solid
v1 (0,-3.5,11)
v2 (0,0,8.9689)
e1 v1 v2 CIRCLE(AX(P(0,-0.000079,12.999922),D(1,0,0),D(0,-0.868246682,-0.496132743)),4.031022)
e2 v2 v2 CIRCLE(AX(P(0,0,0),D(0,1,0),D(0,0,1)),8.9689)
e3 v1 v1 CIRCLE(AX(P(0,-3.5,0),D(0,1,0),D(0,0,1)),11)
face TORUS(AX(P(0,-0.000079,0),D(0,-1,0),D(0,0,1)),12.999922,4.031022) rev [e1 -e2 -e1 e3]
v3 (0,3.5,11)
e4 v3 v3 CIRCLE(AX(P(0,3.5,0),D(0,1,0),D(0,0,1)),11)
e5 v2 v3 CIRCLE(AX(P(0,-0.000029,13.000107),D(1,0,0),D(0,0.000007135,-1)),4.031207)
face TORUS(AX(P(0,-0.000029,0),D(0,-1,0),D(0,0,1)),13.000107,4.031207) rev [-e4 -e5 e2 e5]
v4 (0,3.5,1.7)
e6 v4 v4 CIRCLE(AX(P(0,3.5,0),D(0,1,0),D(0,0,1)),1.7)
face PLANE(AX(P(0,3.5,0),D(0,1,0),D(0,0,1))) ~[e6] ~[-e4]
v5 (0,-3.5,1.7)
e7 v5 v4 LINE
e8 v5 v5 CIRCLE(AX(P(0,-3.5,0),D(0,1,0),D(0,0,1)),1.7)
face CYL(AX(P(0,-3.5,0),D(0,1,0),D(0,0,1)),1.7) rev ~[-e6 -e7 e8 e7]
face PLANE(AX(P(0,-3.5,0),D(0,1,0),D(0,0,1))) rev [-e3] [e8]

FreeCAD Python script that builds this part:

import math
import FreeCAD as App
import Part
import Sketcher

V = App.Vector
Q = App.Units.Quantity

doc = App.newDocument("Part")
body = doc.addObject("PartDesign::Body", "Body")

sketch1 = body.newObject("Sketcher::SketchObject", "Sketch")
sketch1.AttachmentSupport = (doc.getObject("YZ_Plane"), [""])
sketch1.MapMode = "FlatFace"
sketch1.addGeometry([
    Part.ArcOfCircle(Part.Circle(V(0, 13, 0), V(0, 0, 1), 4.031129), math.radians(-90), math.radians(-29.744881)),
    Part.ArcOfCircle(Part.Circle(V(0, 13, 0), V(0, 0, 1), 4.0311), math.radians(-150.255119), math.radians(-90)),
    Part.LineSegment(V(-3.5, 11, 0), V(-3.5, 1.7, 0)),
    Part.LineSegment(V(-3.5, 1.7, 0), V(3.5, 1.7, 0)),
    Part.LineSegment(V(3.5, 1.7, 0), V(3.5, 11, 0)),
], False)
sketch1.addConstraint([
    Sketcher.Constraint("Tangent", 0, 1, 1, 2),
    Sketcher.Constraint("Coincident", 1, 1, 2, 1),
    Sketcher.Constraint("Coincident", 2, 2, 3, 1),
    Sketcher.Constraint("Coincident", 3, 2, 4, 1),
    Sketcher.Constraint("Coincident", 4, 2, 0, 2),
    Sketcher.Constraint("Vertical", 2),
    Sketcher.Constraint("Horizontal", 3),
    Sketcher.Constraint("Vertical", 4),
    Sketcher.Constraint("Equal", 0, 1),
    Sketcher.Constraint("Symmetric", 1, 1, 4, 2, -2),
    Sketcher.Constraint("PointOnObject", 0, 1, -2),
    Sketcher.Constraint("DistanceX", 3, 1, 3, 2, Q("7 mm")),
    Sketcher.Constraint("DistanceY", -1, 1, 0, 3, Q("13 mm")),
    Sketcher.Constraint("DistanceY", -1, 1, 1, 1, Q("11 mm")),
    Sketcher.Constraint("DistanceY", -1, 1, 2, 2, Q("1.7 mm")),
])
revolution = body.newObject("PartDesign::Revolution", "Revolution")
revolution.Profile = sketch1
revolution.ReferenceAxis = (sketch1, ["H_Axis"])
revolution.Angle = 360

doc.recompute()
